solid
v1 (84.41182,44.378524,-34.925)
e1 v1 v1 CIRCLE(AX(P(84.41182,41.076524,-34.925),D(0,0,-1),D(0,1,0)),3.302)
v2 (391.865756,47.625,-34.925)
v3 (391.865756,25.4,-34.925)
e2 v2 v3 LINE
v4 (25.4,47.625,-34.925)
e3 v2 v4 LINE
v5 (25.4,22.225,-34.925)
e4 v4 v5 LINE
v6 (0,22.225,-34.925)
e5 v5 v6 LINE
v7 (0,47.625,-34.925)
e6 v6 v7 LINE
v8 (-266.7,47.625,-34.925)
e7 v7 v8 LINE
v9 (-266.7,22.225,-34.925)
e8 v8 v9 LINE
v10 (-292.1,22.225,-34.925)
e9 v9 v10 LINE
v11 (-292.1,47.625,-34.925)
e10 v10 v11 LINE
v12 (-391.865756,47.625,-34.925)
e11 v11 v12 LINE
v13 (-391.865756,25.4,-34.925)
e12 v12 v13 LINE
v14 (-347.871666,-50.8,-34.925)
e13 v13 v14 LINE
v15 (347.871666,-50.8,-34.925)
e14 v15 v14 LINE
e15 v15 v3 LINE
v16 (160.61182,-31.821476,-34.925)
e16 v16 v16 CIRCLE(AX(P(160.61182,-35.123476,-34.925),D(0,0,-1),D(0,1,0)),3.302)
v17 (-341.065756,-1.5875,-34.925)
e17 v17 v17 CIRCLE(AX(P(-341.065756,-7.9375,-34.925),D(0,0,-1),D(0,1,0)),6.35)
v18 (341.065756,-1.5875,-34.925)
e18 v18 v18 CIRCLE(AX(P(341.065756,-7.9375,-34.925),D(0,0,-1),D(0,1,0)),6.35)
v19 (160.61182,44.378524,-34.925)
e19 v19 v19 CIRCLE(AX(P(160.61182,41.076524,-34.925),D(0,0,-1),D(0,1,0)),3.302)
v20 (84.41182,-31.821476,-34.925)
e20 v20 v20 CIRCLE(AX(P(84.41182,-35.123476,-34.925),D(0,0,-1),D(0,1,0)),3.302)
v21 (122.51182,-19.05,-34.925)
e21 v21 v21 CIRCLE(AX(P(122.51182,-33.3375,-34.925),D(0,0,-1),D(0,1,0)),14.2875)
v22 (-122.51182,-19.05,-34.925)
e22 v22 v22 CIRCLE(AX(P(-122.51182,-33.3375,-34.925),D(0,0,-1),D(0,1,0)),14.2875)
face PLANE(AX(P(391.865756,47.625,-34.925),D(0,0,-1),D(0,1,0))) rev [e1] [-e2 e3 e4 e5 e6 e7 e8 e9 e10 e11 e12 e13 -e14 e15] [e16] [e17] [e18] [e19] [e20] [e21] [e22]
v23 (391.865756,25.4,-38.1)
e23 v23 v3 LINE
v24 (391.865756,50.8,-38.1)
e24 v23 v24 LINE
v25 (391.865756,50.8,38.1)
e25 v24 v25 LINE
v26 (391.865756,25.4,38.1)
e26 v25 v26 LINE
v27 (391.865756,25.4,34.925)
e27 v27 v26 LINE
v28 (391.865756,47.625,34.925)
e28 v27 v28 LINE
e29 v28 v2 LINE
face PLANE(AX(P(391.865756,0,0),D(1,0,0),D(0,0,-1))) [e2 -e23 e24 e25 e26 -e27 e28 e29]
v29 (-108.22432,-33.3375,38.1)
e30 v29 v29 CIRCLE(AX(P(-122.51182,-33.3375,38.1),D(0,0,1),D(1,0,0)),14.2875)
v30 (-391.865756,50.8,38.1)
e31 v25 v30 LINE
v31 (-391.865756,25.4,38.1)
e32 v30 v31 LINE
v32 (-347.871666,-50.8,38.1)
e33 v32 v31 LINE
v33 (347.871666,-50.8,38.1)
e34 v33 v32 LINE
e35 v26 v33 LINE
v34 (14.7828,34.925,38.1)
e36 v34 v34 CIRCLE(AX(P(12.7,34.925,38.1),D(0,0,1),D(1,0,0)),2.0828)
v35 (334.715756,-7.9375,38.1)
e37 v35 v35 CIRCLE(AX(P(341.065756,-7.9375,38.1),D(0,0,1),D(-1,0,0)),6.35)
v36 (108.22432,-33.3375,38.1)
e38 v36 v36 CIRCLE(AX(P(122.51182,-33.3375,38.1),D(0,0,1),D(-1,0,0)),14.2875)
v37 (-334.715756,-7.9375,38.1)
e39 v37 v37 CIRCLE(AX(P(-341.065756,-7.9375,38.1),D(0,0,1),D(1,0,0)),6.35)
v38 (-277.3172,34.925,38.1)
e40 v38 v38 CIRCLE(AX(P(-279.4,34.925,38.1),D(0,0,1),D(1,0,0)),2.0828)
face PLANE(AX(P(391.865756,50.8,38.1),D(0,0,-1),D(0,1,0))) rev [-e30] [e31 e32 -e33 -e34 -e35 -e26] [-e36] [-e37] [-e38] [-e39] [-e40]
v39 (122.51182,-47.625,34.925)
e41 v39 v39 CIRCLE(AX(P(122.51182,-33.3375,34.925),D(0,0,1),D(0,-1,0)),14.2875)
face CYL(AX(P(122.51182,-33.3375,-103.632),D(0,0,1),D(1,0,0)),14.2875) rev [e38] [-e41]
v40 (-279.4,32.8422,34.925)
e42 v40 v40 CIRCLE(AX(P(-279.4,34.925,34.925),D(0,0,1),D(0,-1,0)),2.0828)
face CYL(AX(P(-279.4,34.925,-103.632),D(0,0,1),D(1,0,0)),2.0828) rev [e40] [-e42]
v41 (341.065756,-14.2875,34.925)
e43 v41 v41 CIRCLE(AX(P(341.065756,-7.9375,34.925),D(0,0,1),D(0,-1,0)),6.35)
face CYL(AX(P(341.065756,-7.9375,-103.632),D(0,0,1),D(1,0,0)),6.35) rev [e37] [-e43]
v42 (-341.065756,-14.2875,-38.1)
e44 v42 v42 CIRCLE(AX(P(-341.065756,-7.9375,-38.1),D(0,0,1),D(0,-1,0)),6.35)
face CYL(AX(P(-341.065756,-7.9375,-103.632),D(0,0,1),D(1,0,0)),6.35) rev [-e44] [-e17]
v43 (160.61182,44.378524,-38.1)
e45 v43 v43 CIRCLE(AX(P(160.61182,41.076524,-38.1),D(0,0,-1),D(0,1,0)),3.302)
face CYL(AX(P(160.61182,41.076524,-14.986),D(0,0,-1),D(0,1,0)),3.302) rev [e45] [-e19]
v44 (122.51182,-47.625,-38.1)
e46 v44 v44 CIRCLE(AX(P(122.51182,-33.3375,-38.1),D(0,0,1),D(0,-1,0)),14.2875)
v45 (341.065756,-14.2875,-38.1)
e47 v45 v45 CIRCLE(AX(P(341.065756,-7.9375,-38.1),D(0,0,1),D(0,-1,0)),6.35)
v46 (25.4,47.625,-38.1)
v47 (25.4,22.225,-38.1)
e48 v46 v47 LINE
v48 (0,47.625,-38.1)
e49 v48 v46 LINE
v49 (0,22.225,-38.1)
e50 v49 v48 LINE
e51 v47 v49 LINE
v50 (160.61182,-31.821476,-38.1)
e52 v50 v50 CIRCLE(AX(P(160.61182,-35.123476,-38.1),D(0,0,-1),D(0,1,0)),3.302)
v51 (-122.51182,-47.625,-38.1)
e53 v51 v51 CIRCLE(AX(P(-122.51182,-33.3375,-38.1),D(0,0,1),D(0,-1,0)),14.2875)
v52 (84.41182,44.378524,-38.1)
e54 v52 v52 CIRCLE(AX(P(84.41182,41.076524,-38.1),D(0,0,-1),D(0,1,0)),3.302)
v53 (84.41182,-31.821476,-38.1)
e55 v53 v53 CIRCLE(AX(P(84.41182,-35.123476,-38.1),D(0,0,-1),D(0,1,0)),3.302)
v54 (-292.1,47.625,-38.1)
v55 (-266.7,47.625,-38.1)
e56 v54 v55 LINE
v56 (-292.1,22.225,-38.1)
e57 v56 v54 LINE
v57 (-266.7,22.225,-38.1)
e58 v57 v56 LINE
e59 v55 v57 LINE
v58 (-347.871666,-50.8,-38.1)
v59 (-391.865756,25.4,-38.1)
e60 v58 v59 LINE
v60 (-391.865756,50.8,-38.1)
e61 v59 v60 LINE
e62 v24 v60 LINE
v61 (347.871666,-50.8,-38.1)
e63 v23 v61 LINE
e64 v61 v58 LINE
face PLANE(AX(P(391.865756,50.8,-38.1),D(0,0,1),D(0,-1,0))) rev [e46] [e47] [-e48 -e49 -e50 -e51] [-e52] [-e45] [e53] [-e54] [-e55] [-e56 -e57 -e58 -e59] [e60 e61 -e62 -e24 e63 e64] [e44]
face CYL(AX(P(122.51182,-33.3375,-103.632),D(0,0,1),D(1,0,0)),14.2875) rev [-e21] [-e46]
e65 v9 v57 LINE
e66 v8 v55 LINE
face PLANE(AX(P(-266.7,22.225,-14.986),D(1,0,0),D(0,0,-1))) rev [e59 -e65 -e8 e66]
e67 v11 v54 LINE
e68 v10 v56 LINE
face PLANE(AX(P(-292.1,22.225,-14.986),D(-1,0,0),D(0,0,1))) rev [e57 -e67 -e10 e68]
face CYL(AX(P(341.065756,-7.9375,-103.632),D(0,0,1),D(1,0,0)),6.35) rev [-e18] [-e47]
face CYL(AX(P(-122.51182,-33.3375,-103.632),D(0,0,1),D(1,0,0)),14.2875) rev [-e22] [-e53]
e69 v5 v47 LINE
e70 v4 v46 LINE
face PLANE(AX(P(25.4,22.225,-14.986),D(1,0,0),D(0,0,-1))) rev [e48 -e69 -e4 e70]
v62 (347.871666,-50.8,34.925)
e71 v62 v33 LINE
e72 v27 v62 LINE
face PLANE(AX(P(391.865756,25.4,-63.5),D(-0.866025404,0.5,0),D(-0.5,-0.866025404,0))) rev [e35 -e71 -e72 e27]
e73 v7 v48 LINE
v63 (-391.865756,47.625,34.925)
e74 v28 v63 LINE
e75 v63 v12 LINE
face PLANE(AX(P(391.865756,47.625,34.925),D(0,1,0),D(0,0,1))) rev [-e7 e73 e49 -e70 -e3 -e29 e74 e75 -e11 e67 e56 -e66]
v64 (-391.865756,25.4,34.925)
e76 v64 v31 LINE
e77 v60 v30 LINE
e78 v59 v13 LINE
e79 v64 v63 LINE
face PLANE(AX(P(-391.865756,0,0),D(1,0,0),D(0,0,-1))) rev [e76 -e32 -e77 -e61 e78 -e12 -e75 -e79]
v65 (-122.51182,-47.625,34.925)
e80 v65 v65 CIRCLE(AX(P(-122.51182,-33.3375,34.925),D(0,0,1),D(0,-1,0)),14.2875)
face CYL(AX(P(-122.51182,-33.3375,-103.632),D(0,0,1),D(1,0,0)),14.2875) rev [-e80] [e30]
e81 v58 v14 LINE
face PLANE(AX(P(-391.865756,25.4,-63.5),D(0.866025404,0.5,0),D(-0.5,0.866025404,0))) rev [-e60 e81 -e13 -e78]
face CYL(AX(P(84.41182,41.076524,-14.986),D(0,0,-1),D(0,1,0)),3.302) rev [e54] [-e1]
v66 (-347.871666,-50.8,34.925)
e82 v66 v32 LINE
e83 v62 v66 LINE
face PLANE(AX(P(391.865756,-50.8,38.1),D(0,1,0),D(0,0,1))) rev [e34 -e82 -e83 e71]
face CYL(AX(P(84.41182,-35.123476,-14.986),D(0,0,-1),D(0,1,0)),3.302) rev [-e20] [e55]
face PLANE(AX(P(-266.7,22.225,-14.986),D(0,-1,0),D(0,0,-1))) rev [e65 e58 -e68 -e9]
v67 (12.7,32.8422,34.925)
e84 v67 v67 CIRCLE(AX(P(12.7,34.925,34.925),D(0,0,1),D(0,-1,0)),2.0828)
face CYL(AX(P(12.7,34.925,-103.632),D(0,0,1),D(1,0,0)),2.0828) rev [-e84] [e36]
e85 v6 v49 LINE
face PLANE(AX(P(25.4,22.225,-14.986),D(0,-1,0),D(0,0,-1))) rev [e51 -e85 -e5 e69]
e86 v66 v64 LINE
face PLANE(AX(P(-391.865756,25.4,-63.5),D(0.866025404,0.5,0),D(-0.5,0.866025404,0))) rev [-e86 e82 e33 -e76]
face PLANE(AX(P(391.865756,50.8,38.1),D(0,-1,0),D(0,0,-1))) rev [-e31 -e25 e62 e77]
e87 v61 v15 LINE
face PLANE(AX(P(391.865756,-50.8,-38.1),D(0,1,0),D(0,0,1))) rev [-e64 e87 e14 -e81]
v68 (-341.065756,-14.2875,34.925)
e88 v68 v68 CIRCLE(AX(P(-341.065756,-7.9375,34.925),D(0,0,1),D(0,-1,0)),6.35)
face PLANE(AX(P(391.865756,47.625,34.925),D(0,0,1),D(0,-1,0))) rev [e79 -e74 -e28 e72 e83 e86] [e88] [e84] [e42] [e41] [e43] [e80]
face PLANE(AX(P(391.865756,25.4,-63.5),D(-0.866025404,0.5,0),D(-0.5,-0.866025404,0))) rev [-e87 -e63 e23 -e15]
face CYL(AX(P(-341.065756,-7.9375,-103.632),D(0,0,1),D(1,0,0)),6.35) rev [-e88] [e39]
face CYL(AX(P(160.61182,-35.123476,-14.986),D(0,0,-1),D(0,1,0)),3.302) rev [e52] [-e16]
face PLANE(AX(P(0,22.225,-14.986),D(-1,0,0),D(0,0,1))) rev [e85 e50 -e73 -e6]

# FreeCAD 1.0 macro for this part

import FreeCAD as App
import Part
import Sketcher
from FreeCAD import Vector
Q = App.Units.Quantity


def add_polygon(sketch, points):
    """Adds a closed chain of lines whose ends are joined by coincident constraints."""
    first, n = sketch.GeometryCount, len(points)
    for a, b in zip(points, points[1:] + points[:1]):
        sketch.addGeometry(Part.LineSegment(App.Vector(*a, 0), App.Vector(*b, 0)), False)
    for i in range(n):
        sketch.addConstraint(Sketcher.Constraint("Coincident", first + i, 2, first + (i + 1) % n, 1))

doc = App.newDocument("Part")
params = doc.addObject("Spreadsheet::Sheet", "Params")
for row, (alias, value) in enumerate([
    ("sketch1_width", "4 in"),
    ("sketch1_height", "3 in"),
    ("sketch1_height2", "2.75 in"),
    ("sketch1_width2", "3.875 in"),
    ("pad1_length", "783.731513 mm"),
    ("sketch2_diameter", "0.5 in"),
    ("sketch2_diameter2", "1.125 in"),
    ("sketch2_diameter3", "0.164 in"),
    ("pocket1_length", "5.58 in"),
    ("sketch3_diameter", "0.26 in"),
    ("sketch3_width", "1 in"),
    ("pocket2_length", "0.91 in"),
    ("sketch4_height", "3 in"),
    ("pocket3_length", "4 in"),
], start=1):
    params.set(f"A{row}", alias)
    params.set(f"B{row}", "=" + value)
    params.setAlias(f"B{row}", alias)

body = doc.addObject("PartDesign::Body", "Body")

sketch1 = body.newObject("Sketcher::SketchObject", "Sketch")
sketch1.AttachmentSupport = (doc.getObject("YZ_Plane"), [""])
sketch1.MapMode = "FlatFace"
add_polygon(sketch1, [(50.8, -38.1), (50.8, 38.1), (-50.8, 38.1), (-50.8, 34.925), (47.625, 34.925), (47.625, -34.925), (-50.8, -34.925), (-50.8, -38.1)])
sketch1.addConstraint([
    Sketcher.Constraint("Vertical", 0),
    Sketcher.Constraint("Horizontal", 1),
    Sketcher.Constraint("Vertical", 2),
    Sketcher.Constraint("Horizontal", 3),
    Sketcher.Constraint("Vertical", 4),
    Sketcher.Constraint("Horizontal", 5),
    Sketcher.Constraint("Vertical", 6),
    Sketcher.Constraint("Horizontal", 7),
    Sketcher.Constraint("Symmetric", 0, 2, 6, 2, -1, 1),
    Sketcher.Constraint("Symmetric", 2, 2, 5, 2, -1),
    Sketcher.Constraint("DistanceX", 1, 2, 1, 1, Q("4 in")),
    Sketcher.Constraint("DistanceY", 0, 1, 0, 2, Q("3 in")),
    Sketcher.Constraint("DistanceY", 4, 2, 4, 1, Q("2.75 in")),
    Sketcher.Constraint("DistanceX", 3, 1, 3, 2, Q("3.875 in")),
])
sketch1.setExpression("Constraints[18]", "Params.sketch1_width")
sketch1.setExpression("Constraints[19]", "Params.sketch1_height")
sketch1.setExpression("Constraints[20]", "Params.sketch1_height2")
sketch1.setExpression("Constraints[21]", "Params.sketch1_width2")
pad1 = body.newObject("PartDesign::Pad", "Pad")
pad1.Profile = sketch1
pad1.setExpression("Length", "Params.pad1_length")
pad1.Midplane = True

sketch2 = body.newObject("Sketcher::SketchObject", "Sketch001")
sketch2.AttachmentSupport = (doc.getObject("XY_Plane"), [""])
sketch2.MapMode = "FlatFace"
sketch2.AttachmentOffset = App.Placement(Vector(0, 0, 1.5 * 25.4), App.Rotation())
sketch2.addGeometry([
    Part.Circle(Vector(-341.065756, -7.9375, 0), Vector(0, 0, 1), 6.35),
    Part.Circle(Vector(122.51182, -33.3375, 0), Vector(0, 0, 1), 14.2875),
    Part.Circle(Vector(341.065756, -7.9375, 0), Vector(0, 0, 1), 6.35),
    Part.Circle(Vector(12.7, 34.925, 0), Vector(0, 0, 1), 2.0828),
    Part.Circle(Vector(-279.4, 34.925, 0), Vector(0, 0, 1), 2.0828),
    Part.Circle(Vector(-122.51182, -33.3375, 0), Vector(0, 0, 1), 14.2875),
], False)
sketch2.addConstraint([
    Sketcher.Constraint("Equal", 0, 2),
    Sketcher.Constraint("Equal", 3, 4),
    Sketcher.Constraint("Equal", 1, 5),
    Sketcher.Constraint("Symmetric", 0, 3, 2, 3, -2),
    Sketcher.Constraint("Symmetric", 1, 3, 5, 3, -2),
    Sketcher.Constraint("Horizontal", 3, 3, 4, 3),
    Sketcher.Constraint("Diameter", 0, Q("0.5 in")),
    Sketcher.Constraint("Diameter", 1, Q("1.125 in")),
    Sketcher.Constraint("Diameter", 3, Q("0.164 in")),
    Sketcher.Constraint("DistanceX", 4, 3, -1, 1, Q("11 in")),
    Sketcher.Constraint("DistanceY", 1, 3, 0, 3, Q("1 in")),
    Sketcher.Constraint("DistanceX", -1, 1, 3, 3, Q("0.5 in")),
    Sketcher.Constraint("DistanceY", 0, 3, -1, 1, Q("0.3125 in")),
    Sketcher.Constraint("DistanceY", -1, 1, 3, 3, Q("1.375 in")),
    Sketcher.Constraint("DistanceX", -1, 1, 1, 3, Q("4.8233 in")),
    Sketcher.Constraint("DistanceX", 0, 3, -1, 1, 341.065756),
])
sketch2.setExpression("Constraints[6]", "Params.sketch2_diameter")
sketch2.setExpression("Constraints[7]", "Params.sketch2_diameter2")
sketch2.setExpression("Constraints[8]", "Params.sketch2_diameter3")
pocket1 = body.newObject("PartDesign::Pocket", "Pocket")
pocket1.Profile = sketch2
pocket1.setExpression("Length", "Params.pocket1_length")

sketch3 = body.newObject("Sketcher::SketchObject", "Sketch002")
sketch3.AttachmentSupport = (doc.getObject("XY_Plane"), [""])
sketch3.MapMode = "FlatFace"
sketch3.AttachmentOffset = App.Placement(Vector(0, 0, -1.5 * 25.4), App.Rotation())
sketch3.addGeometry(Part.Circle(Vector(160.61182, -35.123476, 0), Vector(0, 0, 1), 3.302), False)
sketch3.addGeometry(Part.Circle(Vector(160.61182, 41.076524, 0), Vector(0, 0, 1), 3.302), False)
sketch3.addGeometry(Part.Circle(Vector(84.41182, 41.076524, 0), Vector(0, 0, 1), 3.302), False)
sketch3.addGeometry(Part.Circle(Vector(84.41182, -35.123476, 0), Vector(0, 0, 1), 3.302), False)
add_polygon(sketch3, [(25.4, 47.625), (25.4, 22.225), (0, 22.225), (0, 47.625)])
add_polygon(sketch3, [(-266.7, 47.625), (-266.7, 22.225), (-292.1, 22.225), (-292.1, 47.625)])
sketch3.addConstraint([
    Sketcher.Constraint("Vertical", 4),
    Sketcher.Constraint("Horizontal", 5),
    Sketcher.Constraint("Vertical", 6),
    Sketcher.Constraint("Horizontal", 7),
    Sketcher.Constraint("Vertical", 8),
    Sketcher.Constraint("Horizontal", 9),
    Sketcher.Constraint("Vertical", 10),
    Sketcher.Constraint("Horizontal", 11),
    Sketcher.Constraint("Equal", 0, 1),
    Sketcher.Constraint("Equal", 1, 2),
    Sketcher.Constraint("Equal", 2, 3),
    Sketcher.Constraint("PointOnObject", 5, 2, -2),
    Sketcher.Constraint("Horizontal", 1, 3, 2, 3),
    Sketcher.Constraint("Horizontal", 0, 3, 3, 3),
    Sketcher.Constraint("Horizontal", 5, 2, 8, 2),
    Sketcher.Constraint("Horizontal", 7, 2, 10, 2),
    Sketcher.Constraint("Vertical", 0, 3, 1, 3),
    Sketcher.Constraint("Vertical", 2, 3, 3, 3),
    Sketcher.Constraint("Equal", 7, 9),
    Sketcher.Constraint("Equal", 11, 4),
    Sketcher.Constraint("Diameter", 0, Q("0.26 in")),
    Sketcher.Constraint("DistanceX", 5, 2, 5, 1, Q("1 in")),
    Sketcher.Constraint("DistanceY", 0, 3, 1, 3, Q("3 in")),
    Sketcher.Constraint("DistanceX", 2, 3, 1, 3, Q("3 in")),
    Sketcher.Constraint("DistanceX", 8, 2, -1, 1, Q("10.5 in")),
    Sketcher.Constraint("DistanceY", -1, 1, 4, 2, Q("0.875 in")),
    Sketcher.Constraint("DistanceX", -1, 1, 0, 3, Q("6.3233 in")),
    Sketcher.Constraint("DistanceY", 0, 3, -1, 1, 35.123476),
])
sketch3.setExpression("Constraints[28]", "Params.sketch3_diameter")
sketch3.setExpression("Constraints[29]", "Params.sketch3_width")
pocket2 = body.newObject("PartDesign::Pocket", "Pocket001")
pocket2.Profile = sketch3
pocket2.setExpression("Length", "Params.pocket2_length")
pocket2.Reversed = True

sketch4 = body.newObject("Sketcher::SketchObject", "Sketch003")
sketch4.AttachmentSupport = (doc.getObject("XY_Plane"), [""])
sketch4.MapMode = "FlatFace"
sketch4.AttachmentOffset = App.Placement(Vector(0, 0, 1.5 * 25.4), App.Rotation())
add_polygon(sketch4, [(-347.871666, -50.8), (-391.865756, 25.4), (-391.865756, -50.8)])
add_polygon(sketch4, [(347.871666, -50.8), (391.865756, -50.8), (391.865756, 25.4)])
sketch4.addConstraint([
    Sketcher.Constraint("Vertical", 1),
    Sketcher.Constraint("Horizontal", 2),
    Sketcher.Constraint("Horizontal", 3),
    Sketcher.Constraint("Vertical", 4),
    Sketcher.Constraint("Symmetric", 1, 2, 3, 2, -2),
    Sketcher.Constraint("Horizontal", 0, 2, 4, 2),
    Sketcher.Constraint("Equal", 2, 3),
    Sketcher.Constraint("DistanceY", 1, 2, 1, 1, Q("3 in")),
    Sketcher.Constraint("DistanceY", -1, 1, 0, 2, Q("1 in")),
    Sketcher.Constraint("Angle", 0, Q("120 deg")),
    Sketcher.Constraint("DistanceX", 2, 2, 5, 2, 695.743332),
])
sketch4.setExpression("Constraints[13]", "Params.sketch4_height")
pocket3 = body.newObject("PartDesign::Pocket", "Pocket002")
pocket3.Profile = sketch4
pocket3.setExpression("Length", "Params.pocket3_length")

doc.recompute()
